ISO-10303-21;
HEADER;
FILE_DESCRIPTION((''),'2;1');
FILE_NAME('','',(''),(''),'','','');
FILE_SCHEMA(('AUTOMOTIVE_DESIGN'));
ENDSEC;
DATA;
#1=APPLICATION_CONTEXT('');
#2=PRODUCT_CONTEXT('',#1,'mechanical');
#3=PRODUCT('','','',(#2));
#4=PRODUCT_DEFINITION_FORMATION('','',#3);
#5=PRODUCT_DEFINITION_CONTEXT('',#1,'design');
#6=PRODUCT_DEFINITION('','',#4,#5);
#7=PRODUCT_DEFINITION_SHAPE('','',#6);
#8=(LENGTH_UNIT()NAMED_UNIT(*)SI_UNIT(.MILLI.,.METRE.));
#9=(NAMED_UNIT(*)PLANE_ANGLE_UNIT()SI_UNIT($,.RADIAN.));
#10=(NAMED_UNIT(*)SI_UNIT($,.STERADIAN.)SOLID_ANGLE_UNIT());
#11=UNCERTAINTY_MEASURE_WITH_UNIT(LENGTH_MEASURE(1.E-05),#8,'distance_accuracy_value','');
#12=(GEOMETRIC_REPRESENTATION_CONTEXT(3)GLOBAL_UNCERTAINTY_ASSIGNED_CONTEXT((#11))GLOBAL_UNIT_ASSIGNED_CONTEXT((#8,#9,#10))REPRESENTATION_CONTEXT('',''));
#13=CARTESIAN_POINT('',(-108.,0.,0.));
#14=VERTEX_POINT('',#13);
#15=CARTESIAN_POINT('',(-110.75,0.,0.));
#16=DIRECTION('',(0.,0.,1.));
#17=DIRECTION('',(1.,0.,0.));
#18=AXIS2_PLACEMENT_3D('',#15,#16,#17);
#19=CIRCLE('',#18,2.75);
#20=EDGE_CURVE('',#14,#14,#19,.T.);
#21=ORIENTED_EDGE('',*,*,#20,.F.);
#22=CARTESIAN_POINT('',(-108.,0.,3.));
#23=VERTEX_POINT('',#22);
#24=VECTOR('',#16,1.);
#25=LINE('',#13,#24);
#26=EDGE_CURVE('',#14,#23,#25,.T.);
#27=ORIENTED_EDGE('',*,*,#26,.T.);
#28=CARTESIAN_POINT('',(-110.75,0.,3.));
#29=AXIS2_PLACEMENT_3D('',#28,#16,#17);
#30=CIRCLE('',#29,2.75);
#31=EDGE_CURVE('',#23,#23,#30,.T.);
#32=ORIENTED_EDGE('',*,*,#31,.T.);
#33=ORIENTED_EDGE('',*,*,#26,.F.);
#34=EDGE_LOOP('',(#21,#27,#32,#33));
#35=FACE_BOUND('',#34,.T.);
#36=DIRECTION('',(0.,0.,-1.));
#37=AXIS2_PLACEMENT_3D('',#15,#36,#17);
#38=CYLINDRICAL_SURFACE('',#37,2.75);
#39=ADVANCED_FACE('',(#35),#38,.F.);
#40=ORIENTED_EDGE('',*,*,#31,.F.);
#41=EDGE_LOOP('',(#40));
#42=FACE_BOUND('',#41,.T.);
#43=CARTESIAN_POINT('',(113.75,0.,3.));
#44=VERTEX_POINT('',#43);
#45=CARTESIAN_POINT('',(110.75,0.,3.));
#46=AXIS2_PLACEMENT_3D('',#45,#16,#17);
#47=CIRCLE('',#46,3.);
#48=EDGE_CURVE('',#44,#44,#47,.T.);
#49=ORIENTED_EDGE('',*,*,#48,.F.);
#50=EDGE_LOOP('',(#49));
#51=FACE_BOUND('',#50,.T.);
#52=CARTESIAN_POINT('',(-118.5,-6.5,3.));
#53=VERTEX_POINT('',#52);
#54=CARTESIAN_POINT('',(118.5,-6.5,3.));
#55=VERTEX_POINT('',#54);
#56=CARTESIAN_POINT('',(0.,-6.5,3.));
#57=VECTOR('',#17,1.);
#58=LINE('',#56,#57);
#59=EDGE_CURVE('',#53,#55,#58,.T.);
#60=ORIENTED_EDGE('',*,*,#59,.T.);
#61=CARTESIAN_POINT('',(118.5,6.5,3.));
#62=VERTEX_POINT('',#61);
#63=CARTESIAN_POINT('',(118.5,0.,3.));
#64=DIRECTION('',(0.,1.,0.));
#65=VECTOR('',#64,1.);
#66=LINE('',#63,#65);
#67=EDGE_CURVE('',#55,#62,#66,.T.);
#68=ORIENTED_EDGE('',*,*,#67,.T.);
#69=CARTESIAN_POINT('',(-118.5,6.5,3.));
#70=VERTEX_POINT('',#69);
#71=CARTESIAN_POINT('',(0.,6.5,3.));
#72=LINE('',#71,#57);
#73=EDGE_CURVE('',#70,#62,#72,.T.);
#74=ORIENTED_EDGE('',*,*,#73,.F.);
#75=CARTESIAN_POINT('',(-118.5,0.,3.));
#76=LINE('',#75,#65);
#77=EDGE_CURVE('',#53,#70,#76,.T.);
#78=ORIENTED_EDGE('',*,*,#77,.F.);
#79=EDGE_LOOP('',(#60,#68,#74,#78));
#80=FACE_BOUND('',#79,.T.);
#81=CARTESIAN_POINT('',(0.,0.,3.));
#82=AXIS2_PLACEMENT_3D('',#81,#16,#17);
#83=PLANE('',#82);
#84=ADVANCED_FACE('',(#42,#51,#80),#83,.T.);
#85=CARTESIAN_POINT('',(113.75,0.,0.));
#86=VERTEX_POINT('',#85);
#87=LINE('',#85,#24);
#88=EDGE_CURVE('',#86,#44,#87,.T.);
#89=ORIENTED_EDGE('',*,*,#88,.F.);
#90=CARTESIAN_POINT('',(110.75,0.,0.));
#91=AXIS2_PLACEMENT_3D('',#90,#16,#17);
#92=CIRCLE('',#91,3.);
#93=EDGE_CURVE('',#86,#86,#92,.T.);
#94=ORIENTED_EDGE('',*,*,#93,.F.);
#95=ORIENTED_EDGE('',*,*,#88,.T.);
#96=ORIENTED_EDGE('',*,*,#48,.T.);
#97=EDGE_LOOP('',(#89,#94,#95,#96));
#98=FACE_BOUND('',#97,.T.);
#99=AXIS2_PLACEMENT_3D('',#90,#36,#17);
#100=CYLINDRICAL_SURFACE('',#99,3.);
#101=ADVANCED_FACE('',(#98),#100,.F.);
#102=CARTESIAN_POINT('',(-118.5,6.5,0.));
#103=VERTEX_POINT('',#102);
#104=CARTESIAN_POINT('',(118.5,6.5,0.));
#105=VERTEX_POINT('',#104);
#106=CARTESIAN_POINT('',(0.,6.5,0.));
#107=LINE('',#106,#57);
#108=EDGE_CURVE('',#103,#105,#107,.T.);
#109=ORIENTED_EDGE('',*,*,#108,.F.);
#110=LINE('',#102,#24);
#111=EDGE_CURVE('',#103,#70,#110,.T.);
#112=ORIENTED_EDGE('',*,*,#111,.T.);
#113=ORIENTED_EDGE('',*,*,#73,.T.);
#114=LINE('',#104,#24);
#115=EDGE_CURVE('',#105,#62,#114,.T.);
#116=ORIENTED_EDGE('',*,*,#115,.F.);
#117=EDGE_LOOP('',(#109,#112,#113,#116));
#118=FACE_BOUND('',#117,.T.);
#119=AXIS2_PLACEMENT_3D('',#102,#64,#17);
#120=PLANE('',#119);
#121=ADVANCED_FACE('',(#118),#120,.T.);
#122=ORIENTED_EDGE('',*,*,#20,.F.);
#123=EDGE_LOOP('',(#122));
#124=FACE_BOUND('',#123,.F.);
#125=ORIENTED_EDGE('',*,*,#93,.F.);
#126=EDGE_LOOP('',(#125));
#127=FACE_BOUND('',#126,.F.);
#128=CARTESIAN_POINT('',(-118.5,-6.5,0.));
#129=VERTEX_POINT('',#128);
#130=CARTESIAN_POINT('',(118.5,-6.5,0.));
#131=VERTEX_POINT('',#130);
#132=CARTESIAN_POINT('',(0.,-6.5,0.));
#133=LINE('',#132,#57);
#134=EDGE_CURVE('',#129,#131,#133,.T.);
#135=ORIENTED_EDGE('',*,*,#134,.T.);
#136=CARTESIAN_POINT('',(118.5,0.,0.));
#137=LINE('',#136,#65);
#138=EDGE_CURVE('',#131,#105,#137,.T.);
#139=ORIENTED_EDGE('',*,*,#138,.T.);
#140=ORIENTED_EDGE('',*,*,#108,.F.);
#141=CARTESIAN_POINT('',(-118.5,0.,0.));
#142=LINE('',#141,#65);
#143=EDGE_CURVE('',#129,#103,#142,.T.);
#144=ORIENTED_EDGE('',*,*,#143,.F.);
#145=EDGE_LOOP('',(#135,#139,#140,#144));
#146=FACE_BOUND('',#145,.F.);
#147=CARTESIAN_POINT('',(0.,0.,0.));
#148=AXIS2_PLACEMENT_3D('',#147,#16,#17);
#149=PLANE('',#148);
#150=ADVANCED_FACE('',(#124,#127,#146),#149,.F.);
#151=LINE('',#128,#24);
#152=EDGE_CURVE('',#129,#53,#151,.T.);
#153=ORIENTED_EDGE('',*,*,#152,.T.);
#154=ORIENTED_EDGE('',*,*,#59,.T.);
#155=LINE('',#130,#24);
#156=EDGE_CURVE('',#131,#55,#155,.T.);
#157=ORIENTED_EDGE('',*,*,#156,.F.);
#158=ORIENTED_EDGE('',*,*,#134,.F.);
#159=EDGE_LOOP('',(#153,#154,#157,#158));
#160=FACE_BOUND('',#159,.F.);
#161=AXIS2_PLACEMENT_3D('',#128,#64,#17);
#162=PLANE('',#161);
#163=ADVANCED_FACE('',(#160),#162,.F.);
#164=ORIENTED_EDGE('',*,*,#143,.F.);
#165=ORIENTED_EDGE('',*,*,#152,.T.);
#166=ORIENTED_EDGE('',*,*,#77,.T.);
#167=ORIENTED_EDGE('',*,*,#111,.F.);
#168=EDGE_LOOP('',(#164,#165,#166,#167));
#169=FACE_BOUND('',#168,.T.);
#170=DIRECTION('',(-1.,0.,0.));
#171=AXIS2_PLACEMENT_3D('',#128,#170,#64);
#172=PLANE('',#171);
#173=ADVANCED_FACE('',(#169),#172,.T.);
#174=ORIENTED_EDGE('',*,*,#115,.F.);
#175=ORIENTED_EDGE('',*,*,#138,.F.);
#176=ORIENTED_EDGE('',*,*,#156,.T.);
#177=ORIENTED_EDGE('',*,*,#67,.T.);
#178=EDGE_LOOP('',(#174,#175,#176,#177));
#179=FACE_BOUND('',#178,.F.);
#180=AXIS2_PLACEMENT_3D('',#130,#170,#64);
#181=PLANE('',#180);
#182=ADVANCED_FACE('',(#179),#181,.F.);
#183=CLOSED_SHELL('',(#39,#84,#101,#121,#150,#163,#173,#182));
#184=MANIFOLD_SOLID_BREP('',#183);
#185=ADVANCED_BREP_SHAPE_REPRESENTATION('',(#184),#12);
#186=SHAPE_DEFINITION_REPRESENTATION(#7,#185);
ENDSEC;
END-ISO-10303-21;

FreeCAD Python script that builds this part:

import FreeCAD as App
import Part
import Sketcher
from FreeCAD import Vector


def add_polygon(sketch, points):
    """Adds a closed chain of lines whose ends are joined by coincident constraints."""
    first, n = sketch.GeometryCount, len(points)
    for a, b in zip(points, points[1:] + points[:1]):
        sketch.addGeometry(Part.LineSegment(App.Vector(*a, 0), App.Vector(*b, 0)), False)
    for i in range(n):
        sketch.addConstraint(Sketcher.Constraint("Coincident", first + i, 2, first + (i + 1) % n, 1))

doc = App.newDocument("Part")
body = doc.addObject("PartDesign::Body", "Body")

sketch1 = body.newObject("Sketcher::SketchObject", "Sketch")
sketch1.AttachmentSupport = (doc.getObject("XY_Plane"), [""])
sketch1.MapMode = "FlatFace"
add_polygon(sketch1, [(-118.5, 6.5), (-118.5, -6.5), (118.5, -6.5), (118.5, 6.5)])
sketch1.addGeometry(Part.Circle(Vector(-110.8, 0, 0), Vector(0, 0, 1), 2.8), False)
sketch1.addGeometry(Part.Circle(Vector(110.8, 0, 0), Vector(0, 0, 1), 3), False)
sketch1.addConstraint([
    Sketcher.Constraint("Vertical", 0),
    Sketcher.Constraint("Horizontal", 1),
    Sketcher.Constraint("Vertical", 2),
    Sketcher.Constraint("Horizontal", 3),
    Sketcher.Constraint("Symmetric", 4, 3, 5, 3, -1, 1),
    Sketcher.Constraint("Symmetric", 0, 2, 2, 2, -1, 1),
    Sketcher.Constraint("PointOnObject", 4, 3, -1),
    Sketcher.Constraint("Diameter", 5, 6.0),
    Sketcher.Constraint("Diameter", 4, 5.5),
    Sketcher.Constraint("DistanceX", 1, 1, 1, 2, 237.0),
    Sketcher.Constraint("DistanceY", 0, 2, 0, 1, 13.0),
    Sketcher.Constraint("DistanceX", 4, 3, 5, 3, 221.5),
])
pad1 = body.newObject("PartDesign::Pad", "Pad")
pad1.Profile = sketch1
pad1.Length = 3

doc.recompute()
